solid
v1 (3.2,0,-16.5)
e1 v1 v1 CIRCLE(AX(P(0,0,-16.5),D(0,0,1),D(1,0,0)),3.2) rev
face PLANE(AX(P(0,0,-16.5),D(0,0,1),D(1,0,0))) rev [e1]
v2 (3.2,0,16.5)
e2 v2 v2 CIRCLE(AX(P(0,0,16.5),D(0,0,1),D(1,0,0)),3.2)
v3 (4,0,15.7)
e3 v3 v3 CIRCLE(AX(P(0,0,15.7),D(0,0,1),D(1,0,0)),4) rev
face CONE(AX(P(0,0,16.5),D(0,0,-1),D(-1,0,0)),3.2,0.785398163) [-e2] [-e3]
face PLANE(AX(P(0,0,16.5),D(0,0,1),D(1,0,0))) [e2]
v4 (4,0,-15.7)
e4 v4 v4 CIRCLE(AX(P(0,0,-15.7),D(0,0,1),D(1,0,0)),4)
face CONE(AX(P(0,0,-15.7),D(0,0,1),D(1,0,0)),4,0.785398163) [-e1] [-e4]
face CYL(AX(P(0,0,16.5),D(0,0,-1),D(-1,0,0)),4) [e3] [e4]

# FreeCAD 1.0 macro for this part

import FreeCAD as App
import Part
import Sketcher
from FreeCAD import Vector
Q = App.Units.Quantity


def edges_at(feature, points):
    """Names of the edges that pass closest to the given points."""
    edges = feature.Shape.Edges
    near = lambda p: min(range(len(edges)), key=lambda i: edges[i].distToShape(Part.Vertex(*p))[0])
    return sorted({f"Edge{near(p) + 1}" for p in points})

doc = App.newDocument("Part")
body = doc.addObject("PartDesign::Body", "Body")

# Sketch on XY plane
sketch1 = body.newObject("Sketcher::SketchObject", "Sketch")
sketch1.AttachmentSupport = (doc.getObject("XY_Plane"), [""])
sketch1.MapMode = "FlatFace"
sketch1.addGeometry(Part.Circle(Vector(0, 0, 0), Vector(0, 0, 1), 4), False)
sketch1.addConstraint([
    Sketcher.Constraint("Coincident", 0, 3, -1, 1),
    Sketcher.Constraint("Diameter", 0, Q("8 mm")),
])
pad1 = body.newObject("PartDesign::Pad", "Pad")
pad1.Profile = sketch1
pad1.Length = 33
pad1.Midplane = True
doc.recompute()

chamfer = body.newObject("PartDesign::Chamfer", "Chamfer")
chamfer.Base = (pad1, edges_at(pad1, [(-4, 0, -16.5), (-4, 0, 16.5)]))
chamfer.Size = 0.8

doc.recompute()
